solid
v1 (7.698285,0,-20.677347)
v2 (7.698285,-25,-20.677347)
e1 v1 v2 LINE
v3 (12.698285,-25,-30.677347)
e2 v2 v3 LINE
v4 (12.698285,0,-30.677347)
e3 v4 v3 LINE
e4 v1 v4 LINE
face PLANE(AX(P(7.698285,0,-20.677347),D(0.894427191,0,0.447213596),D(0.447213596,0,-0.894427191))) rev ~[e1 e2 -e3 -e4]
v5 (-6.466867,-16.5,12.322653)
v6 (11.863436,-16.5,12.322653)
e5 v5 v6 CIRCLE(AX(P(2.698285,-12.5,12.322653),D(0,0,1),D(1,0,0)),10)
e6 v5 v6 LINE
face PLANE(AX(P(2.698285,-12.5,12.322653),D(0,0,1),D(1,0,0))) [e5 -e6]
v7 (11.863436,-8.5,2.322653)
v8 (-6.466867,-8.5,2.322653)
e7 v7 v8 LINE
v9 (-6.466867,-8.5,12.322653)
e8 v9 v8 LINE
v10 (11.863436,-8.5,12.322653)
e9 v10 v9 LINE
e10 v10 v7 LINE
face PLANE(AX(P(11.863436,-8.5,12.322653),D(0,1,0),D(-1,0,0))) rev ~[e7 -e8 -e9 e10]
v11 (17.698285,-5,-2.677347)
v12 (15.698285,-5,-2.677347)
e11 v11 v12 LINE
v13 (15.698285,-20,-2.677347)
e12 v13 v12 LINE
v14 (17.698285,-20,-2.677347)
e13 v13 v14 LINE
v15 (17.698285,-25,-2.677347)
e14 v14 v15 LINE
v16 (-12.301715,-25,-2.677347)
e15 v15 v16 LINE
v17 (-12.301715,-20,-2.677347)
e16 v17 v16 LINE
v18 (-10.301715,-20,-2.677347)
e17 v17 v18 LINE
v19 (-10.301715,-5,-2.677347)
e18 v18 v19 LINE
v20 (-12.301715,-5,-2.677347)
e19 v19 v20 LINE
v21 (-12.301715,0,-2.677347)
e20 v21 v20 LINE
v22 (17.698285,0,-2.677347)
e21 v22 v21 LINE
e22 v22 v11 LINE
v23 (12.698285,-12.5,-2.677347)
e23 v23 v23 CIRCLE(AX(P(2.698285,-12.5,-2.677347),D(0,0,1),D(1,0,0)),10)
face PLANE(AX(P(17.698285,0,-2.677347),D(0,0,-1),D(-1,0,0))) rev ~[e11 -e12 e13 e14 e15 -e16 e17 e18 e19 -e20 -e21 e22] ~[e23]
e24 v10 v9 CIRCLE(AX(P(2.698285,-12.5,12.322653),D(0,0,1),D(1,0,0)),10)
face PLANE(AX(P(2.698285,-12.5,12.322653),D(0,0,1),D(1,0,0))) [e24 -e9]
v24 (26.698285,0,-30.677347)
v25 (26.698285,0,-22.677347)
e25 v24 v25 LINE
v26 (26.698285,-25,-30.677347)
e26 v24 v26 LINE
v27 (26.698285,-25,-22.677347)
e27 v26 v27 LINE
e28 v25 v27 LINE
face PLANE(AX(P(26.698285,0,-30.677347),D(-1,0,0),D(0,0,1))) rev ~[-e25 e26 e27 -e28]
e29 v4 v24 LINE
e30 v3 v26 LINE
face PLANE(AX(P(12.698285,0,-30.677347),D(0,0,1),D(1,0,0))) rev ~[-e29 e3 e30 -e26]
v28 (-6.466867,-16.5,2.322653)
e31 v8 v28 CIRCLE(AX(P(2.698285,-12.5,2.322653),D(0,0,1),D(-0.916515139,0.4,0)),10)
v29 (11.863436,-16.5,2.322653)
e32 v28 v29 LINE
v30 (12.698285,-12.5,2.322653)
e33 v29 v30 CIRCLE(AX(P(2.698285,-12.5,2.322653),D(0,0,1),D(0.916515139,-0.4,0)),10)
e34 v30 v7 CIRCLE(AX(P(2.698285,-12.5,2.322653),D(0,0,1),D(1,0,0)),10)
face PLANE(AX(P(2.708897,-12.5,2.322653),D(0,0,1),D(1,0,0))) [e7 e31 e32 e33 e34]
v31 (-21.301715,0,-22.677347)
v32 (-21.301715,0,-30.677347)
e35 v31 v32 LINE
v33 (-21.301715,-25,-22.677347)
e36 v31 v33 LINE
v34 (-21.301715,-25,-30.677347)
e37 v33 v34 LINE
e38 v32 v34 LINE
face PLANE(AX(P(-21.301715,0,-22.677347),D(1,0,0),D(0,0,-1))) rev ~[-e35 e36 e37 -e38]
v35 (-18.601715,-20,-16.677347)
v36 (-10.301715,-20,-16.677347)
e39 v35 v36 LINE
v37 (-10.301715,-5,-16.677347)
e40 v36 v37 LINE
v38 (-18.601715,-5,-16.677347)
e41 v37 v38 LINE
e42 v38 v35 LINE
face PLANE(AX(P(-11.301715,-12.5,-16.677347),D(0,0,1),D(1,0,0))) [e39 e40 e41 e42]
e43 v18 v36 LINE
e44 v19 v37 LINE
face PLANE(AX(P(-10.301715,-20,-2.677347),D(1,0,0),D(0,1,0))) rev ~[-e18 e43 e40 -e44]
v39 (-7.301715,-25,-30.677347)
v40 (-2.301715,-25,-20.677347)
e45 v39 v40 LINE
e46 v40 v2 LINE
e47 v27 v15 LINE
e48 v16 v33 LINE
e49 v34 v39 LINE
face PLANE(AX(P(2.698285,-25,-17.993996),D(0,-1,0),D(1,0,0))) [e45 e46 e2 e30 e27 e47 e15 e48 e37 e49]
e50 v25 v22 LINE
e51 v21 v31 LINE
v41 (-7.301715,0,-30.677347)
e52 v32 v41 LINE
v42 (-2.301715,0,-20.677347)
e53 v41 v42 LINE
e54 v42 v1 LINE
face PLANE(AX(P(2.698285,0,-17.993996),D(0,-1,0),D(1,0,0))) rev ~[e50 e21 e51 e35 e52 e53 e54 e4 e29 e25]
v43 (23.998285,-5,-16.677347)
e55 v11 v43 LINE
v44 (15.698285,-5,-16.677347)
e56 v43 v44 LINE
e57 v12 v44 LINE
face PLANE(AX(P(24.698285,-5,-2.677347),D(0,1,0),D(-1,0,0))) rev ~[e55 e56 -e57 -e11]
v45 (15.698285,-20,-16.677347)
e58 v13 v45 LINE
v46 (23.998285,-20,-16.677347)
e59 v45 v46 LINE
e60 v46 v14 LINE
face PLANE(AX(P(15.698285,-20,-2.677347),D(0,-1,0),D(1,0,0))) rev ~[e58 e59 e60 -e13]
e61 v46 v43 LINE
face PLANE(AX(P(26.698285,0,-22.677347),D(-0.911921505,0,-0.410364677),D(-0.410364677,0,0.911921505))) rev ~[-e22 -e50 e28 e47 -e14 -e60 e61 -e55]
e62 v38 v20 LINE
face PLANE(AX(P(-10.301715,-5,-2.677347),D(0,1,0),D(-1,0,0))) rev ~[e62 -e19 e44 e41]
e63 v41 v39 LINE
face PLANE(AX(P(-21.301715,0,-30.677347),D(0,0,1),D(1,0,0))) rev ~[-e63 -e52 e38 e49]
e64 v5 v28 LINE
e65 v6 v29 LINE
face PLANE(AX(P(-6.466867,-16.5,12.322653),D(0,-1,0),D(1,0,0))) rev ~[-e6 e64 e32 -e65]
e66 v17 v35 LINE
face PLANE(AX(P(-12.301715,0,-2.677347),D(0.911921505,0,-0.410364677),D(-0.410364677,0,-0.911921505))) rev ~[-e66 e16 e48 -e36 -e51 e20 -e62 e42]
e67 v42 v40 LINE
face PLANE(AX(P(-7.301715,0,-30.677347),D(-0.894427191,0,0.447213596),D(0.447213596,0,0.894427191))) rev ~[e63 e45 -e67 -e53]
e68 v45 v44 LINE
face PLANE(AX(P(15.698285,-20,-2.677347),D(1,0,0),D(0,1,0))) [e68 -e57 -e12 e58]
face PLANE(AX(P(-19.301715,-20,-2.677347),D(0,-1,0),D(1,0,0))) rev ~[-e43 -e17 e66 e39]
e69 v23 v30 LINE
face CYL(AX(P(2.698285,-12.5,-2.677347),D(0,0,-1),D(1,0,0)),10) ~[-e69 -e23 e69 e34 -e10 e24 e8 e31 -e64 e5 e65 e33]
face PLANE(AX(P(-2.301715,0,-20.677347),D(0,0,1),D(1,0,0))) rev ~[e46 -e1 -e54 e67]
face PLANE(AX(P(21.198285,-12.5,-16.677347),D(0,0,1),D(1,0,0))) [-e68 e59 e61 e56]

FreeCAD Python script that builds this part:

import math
import FreeCAD as App
import Part
import Sketcher

V = App.Vector
Q = App.Units.Quantity

doc = App.newDocument("Part")
body = doc.addObject("PartDesign::Body", "Body")

# Sketch on XZ plane
sketch1 = body.newObject("Sketcher::SketchObject", "Sketch")
sketch1.AttachmentSupport = (doc.getObject("XZ_Plane"), [""])
sketch1.MapMode = "FlatFace"
sketch1.addGeometry([
    Part.LineSegment(V(-21, -23, 0), V(-21, -31, 0)),  # 0
    Part.LineSegment(V(-21, -31, 0), V(-7, -31, 0)),  # 1
    Part.LineSegment(V(-7, -31, 0), V(-2, -21, 0)),  # 2
    Part.LineSegment(V(-2, -21, 0), V(8, -21, 0)),  # 3
    Part.LineSegment(V(8, -21, 0), V(13, -31, 0)),  # 4
    Part.LineSegment(V(13, -31, 0), V(27, -31, 0)),  # 5
    Part.LineSegment(V(27, -31, 0), V(27, -23, 0)),  # 6
    Part.LineSegment(V(27, -23, 0), V(18, -3, 0)),  # 7
    Part.LineSegment(V(18, -3, 0), V(-12, -3, 0)),  # 8
    Part.LineSegment(V(-12, -3, 0), V(-21, -23, 0)),  # 9
], False)
sketch1.addConstraint([
    Sketcher.Constraint("Coincident", 0, 2, 1, 1),
    Sketcher.Constraint("Coincident", 1, 2, 2, 1),
    Sketcher.Constraint("Coincident", 2, 2, 3, 1),
    Sketcher.Constraint("Coincident", 3, 2, 4, 1),
    Sketcher.Constraint("Coincident", 4, 2, 5, 1),
    Sketcher.Constraint("Coincident", 5, 2, 6, 1),
    Sketcher.Constraint("Coincident", 6, 2, 7, 1),
    Sketcher.Constraint("Coincident", 7, 2, 8, 1),
    Sketcher.Constraint("Coincident", 8, 2, 9, 1),
    Sketcher.Constraint("Coincident", 9, 2, 0, 1),
    Sketcher.Constraint("Vertical", 0),
    Sketcher.Constraint("Horizontal", 1),
    Sketcher.Constraint("Horizontal", 3),
    Sketcher.Constraint("Horizontal", 5),
    Sketcher.Constraint("Vertical", 6),
    Sketcher.Constraint("Horizontal", 8),
    Sketcher.Constraint("Horizontal", 1, 2, 4, 2),
    Sketcher.Constraint("Horizontal", 6, 2, 9, 2),
    Sketcher.Constraint("Equal", 1, 5),
    Sketcher.Constraint("Equal", 2, 4),
    Sketcher.Constraint("Equal", 7, 9),
    Sketcher.Constraint("DistanceX", 1, 1, 1, 2, Q("14 mm")),
    Sketcher.Constraint("DistanceX", 3, 1, 3, 2, Q("10 mm")),
    Sketcher.Constraint("DistanceX", 8, 2, 8, 1, Q("30 mm")),
    Sketcher.Constraint("DistanceY", 0, 2, 0, 1, Q("8 mm")),
    Sketcher.Constraint("DistanceX", 1, 2, 2, 2, Q("5 mm")),
    Sketcher.Constraint("DistanceY", 1, 2, 2, 2, Q("10 mm")),
    Sketcher.Constraint("DistanceY", 3, 2, 7, 2, Q("18 mm")),
    Sketcher.Constraint("DistanceX", 0, 2, -1, 1, Q("21.301715 mm")),
    Sketcher.Constraint("DistanceY", 0, 2, -1, 1, Q("30.677347 mm")),
])
pad1 = body.newObject("PartDesign::Pad", "Pad")
pad1.Profile = sketch1
pad1.Length = 25

# Sketch on XY plane
sketch2 = body.newObject("Sketcher::SketchObject", "Sketch001")
sketch2.AttachmentSupport = (doc.getObject("XY_Plane"), [""])
sketch2.MapMode = "FlatFace"
sketch2.AttachmentOffset = App.Placement(V(0, 0, -2.677347), App.Rotation())
sketch2.addGeometry([
    Part.LineSegment(V(-10, -20, 0), V(-10, -5, 0)),
    Part.LineSegment(V(-10, -5, 0), V(-19, -5, 0)),
    Part.LineSegment(V(-19, -5, 0), V(-19, -20, 0)),
    Part.LineSegment(V(-19, -20, 0), V(-10, -20, 0)),
], False)
sketch2.addConstraint([
    Sketcher.Constraint("Coincident", 0, 2, 1, 1),
    Sketcher.Constraint("Coincident", 1, 2, 2, 1),
    Sketcher.Constraint("Coincident", 2, 2, 3, 1),
    Sketcher.Constraint("Coincident", 3, 2, 0, 1),
    Sketcher.Constraint("Vertical", 0),
    Sketcher.Constraint("Horizontal", 1),
    Sketcher.Constraint("Vertical", 2),
    Sketcher.Constraint("Horizontal", 3),
    Sketcher.Constraint("DistanceX", 1, 2, 1, 1, Q("9 mm")),
    Sketcher.Constraint("DistanceY", 0, 1, 0, 2, Q("15 mm")),
    Sketcher.Constraint("DistanceY", 0, 2, -1, 1, Q("5 mm")),
    Sketcher.Constraint("DistanceX", 0, 2, -1, 1, Q("10.301715 mm")),
])
pocket1 = body.newObject("PartDesign::Pocket", "Pocket")
pocket1.Profile = sketch2
pocket1.Length = 14

# Sketch on XY plane
sketch3 = body.newObject("Sketcher::SketchObject", "Sketch002")
sketch3.AttachmentSupport = (doc.getObject("XY_Plane"), [""])
sketch3.MapMode = "FlatFace"
sketch3.AttachmentOffset = App.Placement(V(0, 0, -2.677347), App.Rotation())
sketch3.addGeometry([
    Part.LineSegment(V(25, -20, 0), V(25, -5, 0)),
    Part.LineSegment(V(25, -5, 0), V(16, -5, 0)),
    Part.LineSegment(V(16, -5, 0), V(16, -20, 0)),
    Part.LineSegment(V(16, -20, 0), V(25, -20, 0)),
], False)
sketch3.addConstraint([
    Sketcher.Constraint("Coincident", 0, 2, 1, 1),
    Sketcher.Constraint("Coincident", 1, 2, 2, 1),
    Sketcher.Constraint("Coincident", 2, 2, 3, 1),
    Sketcher.Constraint("Coincident", 3, 2, 0, 1),
    Sketcher.Constraint("Vertical", 0),
    Sketcher.Constraint("Horizontal", 1),
    Sketcher.Constraint("Vertical", 2),
    Sketcher.Constraint("Horizontal", 3),
    Sketcher.Constraint("DistanceX", 1, 2, 1, 1, Q("9 mm")),
    Sketcher.Constraint("DistanceY", 0, 1, 0, 2, Q("15 mm")),
    Sketcher.Constraint("DistanceY", 0, 2, -1, 1, Q("5 mm")),
    Sketcher.Constraint("DistanceX", -1, 1, 0, 2, Q("24.698285 mm")),
])
pocket2 = body.newObject("PartDesign::Pocket", "Pocket001")
pocket2.Profile = sketch3
pocket2.Length = 14

# Sketch on XY plane
sketch4 = body.newObject("Sketcher::SketchObject", "Sketch003")
sketch4.AttachmentSupport = (doc.getObject("XY_Plane"), [""])
sketch4.MapMode = "FlatFace"
sketch4.AttachmentOffset = App.Placement(V(0, 0, -2.677347), App.Rotation())
sketch4.addGeometry(Part.Circle(V(3, -12, 0), V(0, 0, 1), 10), False)
sketch4.addConstraint([
    Sketcher.Constraint("Diameter", 0, Q("20 mm")),
    Sketcher.Constraint("DistanceY", 0, 3, -1, 1, Q("12.5 mm")),
    Sketcher.Constraint("DistanceX", -1, 1, 0, 3, Q("2.698285 mm")),
])
pad2 = body.newObject("PartDesign::Pad", "Pad001")
pad2.Profile = sketch4
pad2.Length = 15

# Sketch on XY plane
sketch5 = body.newObject("Sketcher::SketchObject", "Sketch004")
sketch5.AttachmentSupport = (doc.getObject("XY_Plane"), [""])
sketch5.MapMode = "FlatFace"
sketch5.AttachmentOffset = App.Placement(V(0, 0, 12.322653), App.Rotation())
sketch5.addGeometry([
    Part.LineSegment(V(11.9, -8.5, 0), V(-6.5, -8.5, 0)),  # 0
    Part.ArcOfCircle(Part.Circle(V(2.7, -12.5, 0), V(0, 0, 1), 10), math.radians(156), math.radians(204)),  # 1
    Part.LineSegment(V(-6.5, -16.5, 0), V(11.9, -16.5, 0)),  # 2
    Part.ArcOfCircle(Part.Circle(V(2.7, -12.5, 0), V(0, 0, 1), 10), math.radians(-24), math.radians(0)),  # 3
    Part.ArcOfCircle(Part.Circle(V(2.7, -12.5, 0), V(0, 0, 1), 10), math.radians(0), math.radians(24)),  # 4
], False)
sketch5.addConstraint([
    Sketcher.Constraint("Coincident", 0, 2, 1, 1),
    Sketcher.Constraint("Coincident", 1, 2, 2, 1),
    Sketcher.Constraint("Coincident", 2, 2, 3, 1),
    Sketcher.Constraint("Tangent", 3, 2, 4, 1),
    Sketcher.Constraint("Coincident", 4, 2, 0, 1),
    Sketcher.Constraint("Horizontal", 0),
    Sketcher.Constraint("Horizontal", 2),
    Sketcher.Constraint("Coincident", 3, 3, 1, 3),
    Sketcher.Constraint("Equal", 1, 3),
    Sketcher.Constraint("Equal", 3, 4),
    Sketcher.Constraint("Horizontal", 4, 3, 3, 2),
    Sketcher.Constraint("Vertical", 0, 2, 1, 2),
    Sketcher.Constraint("Radius", 1, Q("10 mm")),
    Sketcher.Constraint("DistanceY", 1, 3, 0, 2, Q("4 mm")),
    Sketcher.Constraint("DistanceY", 1, 3, -1, 1, Q("12.5 mm")),
    Sketcher.Constraint("DistanceX", -1, 1, 1, 3, Q("2.698285 mm")),
])
pocket3 = body.newObject("PartDesign::Pocket", "Pocket002")
pocket3.Profile = sketch5
pocket3.Length = 10

doc.recompute()
